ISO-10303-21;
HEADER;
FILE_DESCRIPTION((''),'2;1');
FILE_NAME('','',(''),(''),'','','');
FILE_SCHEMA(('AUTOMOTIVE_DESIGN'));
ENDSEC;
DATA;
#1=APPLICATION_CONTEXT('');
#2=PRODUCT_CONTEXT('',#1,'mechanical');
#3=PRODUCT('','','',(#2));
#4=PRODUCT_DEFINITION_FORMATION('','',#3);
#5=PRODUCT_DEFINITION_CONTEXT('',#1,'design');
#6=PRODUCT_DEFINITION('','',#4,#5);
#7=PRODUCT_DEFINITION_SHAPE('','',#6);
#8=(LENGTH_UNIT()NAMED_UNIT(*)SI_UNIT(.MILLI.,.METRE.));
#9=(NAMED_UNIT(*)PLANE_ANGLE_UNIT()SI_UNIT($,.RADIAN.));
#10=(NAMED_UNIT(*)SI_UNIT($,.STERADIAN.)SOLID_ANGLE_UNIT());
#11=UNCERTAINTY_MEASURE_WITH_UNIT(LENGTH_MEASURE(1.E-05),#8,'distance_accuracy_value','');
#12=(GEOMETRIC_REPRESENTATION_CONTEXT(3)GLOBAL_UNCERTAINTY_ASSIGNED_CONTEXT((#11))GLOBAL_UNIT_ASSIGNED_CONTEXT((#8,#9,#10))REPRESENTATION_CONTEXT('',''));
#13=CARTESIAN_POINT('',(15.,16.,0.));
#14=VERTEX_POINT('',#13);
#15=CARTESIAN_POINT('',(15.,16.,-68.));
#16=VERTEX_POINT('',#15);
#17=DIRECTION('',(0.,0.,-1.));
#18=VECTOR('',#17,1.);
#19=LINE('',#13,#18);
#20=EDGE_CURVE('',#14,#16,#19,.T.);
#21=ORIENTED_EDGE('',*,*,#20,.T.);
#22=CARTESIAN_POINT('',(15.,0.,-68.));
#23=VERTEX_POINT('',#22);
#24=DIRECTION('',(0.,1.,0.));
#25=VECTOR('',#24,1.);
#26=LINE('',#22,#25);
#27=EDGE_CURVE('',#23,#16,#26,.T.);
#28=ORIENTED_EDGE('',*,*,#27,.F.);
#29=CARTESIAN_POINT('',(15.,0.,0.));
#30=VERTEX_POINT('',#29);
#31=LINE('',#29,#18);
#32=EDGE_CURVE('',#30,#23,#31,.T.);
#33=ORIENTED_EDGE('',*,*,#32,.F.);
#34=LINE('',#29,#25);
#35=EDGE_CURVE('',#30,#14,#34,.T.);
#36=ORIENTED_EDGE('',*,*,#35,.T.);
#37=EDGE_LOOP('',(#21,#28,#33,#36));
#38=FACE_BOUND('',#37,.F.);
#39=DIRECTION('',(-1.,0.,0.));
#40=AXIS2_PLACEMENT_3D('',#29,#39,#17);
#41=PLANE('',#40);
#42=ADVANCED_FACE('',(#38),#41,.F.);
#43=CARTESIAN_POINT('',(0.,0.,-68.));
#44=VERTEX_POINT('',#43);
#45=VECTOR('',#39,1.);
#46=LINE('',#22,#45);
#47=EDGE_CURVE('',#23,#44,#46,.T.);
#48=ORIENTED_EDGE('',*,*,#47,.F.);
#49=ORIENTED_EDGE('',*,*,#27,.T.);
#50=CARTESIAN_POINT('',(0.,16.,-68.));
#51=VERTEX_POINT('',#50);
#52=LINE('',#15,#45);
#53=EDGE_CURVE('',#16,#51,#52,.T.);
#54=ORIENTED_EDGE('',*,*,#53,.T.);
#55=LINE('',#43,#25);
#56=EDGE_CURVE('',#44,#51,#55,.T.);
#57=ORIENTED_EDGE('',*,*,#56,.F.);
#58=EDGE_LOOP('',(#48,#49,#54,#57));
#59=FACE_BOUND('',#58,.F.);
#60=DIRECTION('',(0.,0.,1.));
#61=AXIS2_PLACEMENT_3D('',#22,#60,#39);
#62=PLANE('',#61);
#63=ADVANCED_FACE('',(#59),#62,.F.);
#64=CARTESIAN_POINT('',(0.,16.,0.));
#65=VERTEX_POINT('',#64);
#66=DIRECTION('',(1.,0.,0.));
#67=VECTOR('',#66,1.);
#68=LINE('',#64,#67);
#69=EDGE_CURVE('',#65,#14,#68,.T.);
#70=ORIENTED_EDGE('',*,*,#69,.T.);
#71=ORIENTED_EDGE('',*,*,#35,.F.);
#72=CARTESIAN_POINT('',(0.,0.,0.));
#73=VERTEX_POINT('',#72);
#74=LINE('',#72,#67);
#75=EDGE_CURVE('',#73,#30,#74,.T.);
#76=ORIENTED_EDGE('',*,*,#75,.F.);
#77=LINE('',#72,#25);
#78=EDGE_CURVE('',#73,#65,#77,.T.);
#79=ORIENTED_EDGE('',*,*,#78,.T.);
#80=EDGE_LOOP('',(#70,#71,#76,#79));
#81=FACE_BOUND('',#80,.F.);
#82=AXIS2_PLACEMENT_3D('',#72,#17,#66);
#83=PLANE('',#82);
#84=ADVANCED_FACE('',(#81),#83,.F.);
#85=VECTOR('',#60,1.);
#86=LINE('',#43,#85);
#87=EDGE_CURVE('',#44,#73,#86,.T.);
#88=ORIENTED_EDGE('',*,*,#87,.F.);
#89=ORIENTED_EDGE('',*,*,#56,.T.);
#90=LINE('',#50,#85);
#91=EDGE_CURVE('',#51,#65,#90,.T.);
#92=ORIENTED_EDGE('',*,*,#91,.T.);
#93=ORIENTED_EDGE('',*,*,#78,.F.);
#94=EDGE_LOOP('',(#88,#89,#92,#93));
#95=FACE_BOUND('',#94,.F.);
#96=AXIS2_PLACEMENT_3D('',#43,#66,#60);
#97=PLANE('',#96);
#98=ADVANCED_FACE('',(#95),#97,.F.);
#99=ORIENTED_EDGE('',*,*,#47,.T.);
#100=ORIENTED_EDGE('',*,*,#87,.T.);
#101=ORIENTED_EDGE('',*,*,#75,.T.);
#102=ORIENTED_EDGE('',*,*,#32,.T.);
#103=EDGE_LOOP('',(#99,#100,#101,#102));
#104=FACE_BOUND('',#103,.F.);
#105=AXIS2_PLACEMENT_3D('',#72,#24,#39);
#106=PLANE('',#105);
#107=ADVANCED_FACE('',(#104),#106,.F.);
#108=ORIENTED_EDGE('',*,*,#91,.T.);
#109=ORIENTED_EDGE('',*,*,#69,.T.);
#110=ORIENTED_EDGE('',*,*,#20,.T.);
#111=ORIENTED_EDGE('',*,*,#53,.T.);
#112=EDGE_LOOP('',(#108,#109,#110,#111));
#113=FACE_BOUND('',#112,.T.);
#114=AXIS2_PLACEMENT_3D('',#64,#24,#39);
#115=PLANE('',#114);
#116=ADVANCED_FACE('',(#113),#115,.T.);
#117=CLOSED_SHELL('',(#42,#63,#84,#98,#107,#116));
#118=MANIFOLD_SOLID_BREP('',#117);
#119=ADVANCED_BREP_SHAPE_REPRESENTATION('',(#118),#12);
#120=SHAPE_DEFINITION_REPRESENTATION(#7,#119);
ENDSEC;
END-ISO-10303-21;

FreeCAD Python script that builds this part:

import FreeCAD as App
import Part
import Sketcher

V = App.Vector
Q = App.Units.Quantity

doc = App.newDocument("Part")
body = doc.addObject("PartDesign::Body", "Body")

# Sketch on XZ plane
sketch1 = body.newObject("Sketcher::SketchObject", "Sketch")
sketch1.AttachmentSupport = (doc.getObject("XZ_Plane"), [""])
sketch1.MapMode = "FlatFace"
sketch1.addGeometry(Part.LineSegment(V(0, -68, 0), V(0, 0, 0)), False)
sketch1.addGeometry(Part.LineSegment(V(0, 0, 0), V(15, 0, 0)), False)
sketch1.addGeometry(Part.LineSegment(V(15, 0, 0), V(15, -68, 0)), False)
sketch1.addGeometry(Part.LineSegment(V(15, -68, 0), V(0, -68, 0)), False)
sketch1.addConstraint(Sketcher.Constraint("Coincident", 0, 2, 1, 1))
sketch1.addConstraint(Sketcher.Constraint("Coincident", 1, 2, 2, 1))
sketch1.addConstraint(Sketcher.Constraint("Coincident", 2, 2, 3, 1))
sketch1.addConstraint(Sketcher.Constraint("Coincident", 3, 2, 0, 1))
sketch1.addConstraint(Sketcher.Constraint("Vertical", 0))
sketch1.addConstraint(Sketcher.Constraint("Horizontal", 1))
sketch1.addConstraint(Sketcher.Constraint("Vertical", 2))
sketch1.addConstraint(Sketcher.Constraint("Horizontal", 3))
sketch1.addConstraint(Sketcher.Constraint("Coincident", 0, 2, -1, 1))
sketch1.addConstraint(Sketcher.Constraint("DistanceX", 1, 1, 1, 2, Q("15 mm")))
sketch1.addConstraint(Sketcher.Constraint("DistanceY", 0, 1, 0, 2, Q("68 mm")))
pad1 = body.newObject("PartDesign::Pad", "Pad")
pad1.Profile = sketch1
pad1.Length = 16
pad1.Reversed = True

doc.recompute()
